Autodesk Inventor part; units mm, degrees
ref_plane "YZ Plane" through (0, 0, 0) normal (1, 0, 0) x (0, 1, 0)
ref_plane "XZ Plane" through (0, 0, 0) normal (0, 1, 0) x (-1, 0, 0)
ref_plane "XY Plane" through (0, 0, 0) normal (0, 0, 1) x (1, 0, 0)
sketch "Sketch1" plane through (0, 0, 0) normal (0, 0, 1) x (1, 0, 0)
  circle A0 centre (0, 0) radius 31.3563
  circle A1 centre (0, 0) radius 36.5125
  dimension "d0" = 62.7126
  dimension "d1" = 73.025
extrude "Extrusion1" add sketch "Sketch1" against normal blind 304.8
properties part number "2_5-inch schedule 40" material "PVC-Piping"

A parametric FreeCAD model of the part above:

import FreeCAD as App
import Part
import Sketcher
from FreeCAD import Vector
Q = App.Units.Quantity

doc = App.newDocument("Part")
body = doc.addObject("PartDesign::Body", "Body")

sketch1 = doc.addObject("Sketcher::SketchObject", "Sketch")
body.addObject(sketch1)
sketch1.AttachmentSupport = (doc.XY_Plane, [""])
sketch1.MapMode = "FlatFace"
sketch1.addGeometry(Part.Circle(Vector(0, 0, 0), Vector(0, 0, 1), 36.5125), False)
sketch1.addGeometry(Part.Circle(Vector(0, 0, 0), Vector(0, 0, 1), 31.3563), False)
sketch1.addConstraint(Sketcher.Constraint("Coincident", 0, 3, -1, 1))
sketch1.addConstraint(Sketcher.Constraint("Coincident", 1, 3, -1, 1))
sketch1.addConstraint(Sketcher.Constraint("Diameter", 0, Q("2.875 in")))
sketch1.addConstraint(Sketcher.Constraint("Diameter", 1, Q("2.469 in")))
pad1 = doc.addObject("PartDesign::Pad", "Pad")
body.addObject(pad1)
pad1.Profile = sketch1
pad1.Length = Q("12 in")
pad1.Reversed = True

doc.recompute()
